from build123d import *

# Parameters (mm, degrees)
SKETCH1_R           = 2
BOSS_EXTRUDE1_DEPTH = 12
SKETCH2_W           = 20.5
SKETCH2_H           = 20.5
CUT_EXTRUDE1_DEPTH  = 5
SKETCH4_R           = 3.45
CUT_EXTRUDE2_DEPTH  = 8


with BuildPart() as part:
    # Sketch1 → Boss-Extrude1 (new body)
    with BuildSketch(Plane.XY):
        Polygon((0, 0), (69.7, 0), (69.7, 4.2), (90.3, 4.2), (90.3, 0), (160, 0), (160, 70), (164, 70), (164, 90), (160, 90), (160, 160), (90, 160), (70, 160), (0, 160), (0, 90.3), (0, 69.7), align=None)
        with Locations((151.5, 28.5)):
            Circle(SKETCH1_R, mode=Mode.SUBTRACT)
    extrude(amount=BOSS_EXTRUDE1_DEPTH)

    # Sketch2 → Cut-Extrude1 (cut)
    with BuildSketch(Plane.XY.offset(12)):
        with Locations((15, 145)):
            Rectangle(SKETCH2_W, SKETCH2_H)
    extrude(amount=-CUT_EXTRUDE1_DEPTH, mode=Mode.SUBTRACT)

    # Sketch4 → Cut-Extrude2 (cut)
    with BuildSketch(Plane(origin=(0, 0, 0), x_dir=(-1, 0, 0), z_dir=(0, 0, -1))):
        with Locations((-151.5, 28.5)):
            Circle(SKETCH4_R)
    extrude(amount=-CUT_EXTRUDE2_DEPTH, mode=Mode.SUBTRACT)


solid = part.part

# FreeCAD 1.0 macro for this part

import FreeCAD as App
import Part
import Sketcher

V = App.Vector


def add_polygon(sketch, points):
    """Adds a closed chain of lines whose ends are joined by coincident constraints."""
    first, n = sketch.GeometryCount, len(points)
    for a, b in zip(points, points[1:] + points[:1]):
        sketch.addGeometry(Part.LineSegment(App.Vector(*a, 0), App.Vector(*b, 0)), False)
    for i in range(n):
        sketch.addConstraint(Sketcher.Constraint("Coincident", first + i, 2, first + (i + 1) % n, 1))

doc = App.newDocument("Part")
params = doc.addObject("Spreadsheet::Sheet", "Params")
for row, (alias, value) in enumerate([
    ("sketch1_diameter", "4 mm"),
    ("sketch1_width", "4 mm"),
    ("sketch1_width2", "160 mm"),
    ("sketch1_height", "70 mm"),
    ("sketch1_width3", "69.7 mm"),
    ("pad1_length", "12 mm"),
    ("sketch2_width", "20.5 mm"),
    ("pocket1_length", "5 mm"),
    ("sketch3_diameter", "6.9 mm"),
    ("pocket2_length", "8 mm"),
], start=1):
    params.set(f"A{row}", alias)
    params.set(f"B{row}", "=" + value)
    params.setAlias(f"B{row}", alias)

body = doc.addObject("PartDesign::Body", "Body")

sketch1 = body.newObject("Sketcher::SketchObject", "Sketch")
sketch1.AttachmentSupport = (doc.getObject("XY_Plane"), [""])
sketch1.MapMode = "FlatFace"
add_polygon(sketch1, [(0, 0), (69.7, 0), (69.7, 4.2), (90.3, 4.2), (90.3, 0), (160, 0), (160, 70), (164, 70), (164, 90), (160, 90), (160, 160), (0, 160)])
sketch1.addGeometry(Part.Circle(V(151.5, 28.5, 0), V(0, 0, 1), 2), False)
sketch1.addConstraint([
    Sketcher.Constraint("Horizontal", 0),
    Sketcher.Constraint("Vertical", 1),
    Sketcher.Constraint("Horizontal", 2),
    Sketcher.Constraint("Vertical", 3),
    Sketcher.Constraint("Horizontal", 4),
    Sketcher.Constraint("Vertical", 5),
    Sketcher.Constraint("Horizontal", 6),
    Sketcher.Constraint("Vertical", 7),
    Sketcher.Constraint("Horizontal", 8),
    Sketcher.Constraint("Vertical", 9),
    Sketcher.Constraint("Horizontal", 10),
    Sketcher.Constraint("Vertical", 11),
    Sketcher.Constraint("Coincident", 11, 2, -1, 1),
    Sketcher.Constraint("PointOnObject", 3, 2, -1),
    Sketcher.Constraint("Vertical", 5, 2, 8, 2),
    Sketcher.Constraint("Equal", 0, 4),
    Sketcher.Constraint("Equal", 5, 9),
    Sketcher.Constraint("Equal", 10, 11),
    Sketcher.Constraint("Diameter", 12, 4.0),
    Sketcher.Constraint("DistanceX", 6, 1, 6, 2, 4.0),
    Sketcher.Constraint("DistanceX", 10, 2, 10, 1, 160.0),
    Sketcher.Constraint("DistanceY", 5, 1, 5, 2, 70.0),
    Sketcher.Constraint("DistanceX", 0, 1, 0, 2, 69.7),
    Sketcher.Constraint("DistanceY", 1, 1, 1, 2, 4.2),
    Sketcher.Constraint("DistanceX", -1, 1, 12, 3, 151.5),
    Sketcher.Constraint("DistanceY", -1, 1, 12, 3, 28.5),
])
sketch1.setExpression("Constraints[30]", "Params.sketch1_diameter")
sketch1.setExpression("Constraints[31]", "Params.sketch1_width")
sketch1.setExpression("Constraints[32]", "Params.sketch1_width2")
sketch1.setExpression("Constraints[33]", "Params.sketch1_height")
sketch1.setExpression("Constraints[34]", "Params.sketch1_width3")
pad1 = body.newObject("PartDesign::Pad", "Pad")
pad1.Profile = sketch1
pad1.setExpression("Length", "Params.pad1_length")

sketch2 = body.newObject("Sketcher::SketchObject", "Sketch001")
sketch2.AttachmentSupport = (doc.getObject("XY_Plane"), [""])
sketch2.MapMode = "FlatFace"
sketch2.AttachmentOffset = App.Placement(V(0, 0, 12), App.Rotation())
add_polygon(sketch2, [(5, 155), (5, 135), (25, 135), (25, 155)])
sketch2.addConstraint([
    Sketcher.Constraint("Vertical", 0),
    Sketcher.Constraint("Horizontal", 1),
    Sketcher.Constraint("Vertical", 2),
    Sketcher.Constraint("Horizontal", 3),
    Sketcher.Constraint("Equal", 3, 0),
    Sketcher.Constraint("DistanceX", 1, 1, 1, 2, 20.5),
    Sketcher.Constraint("DistanceX", -1, 1, 0, 2, 4.75),
    Sketcher.Constraint("DistanceY", -1, 1, 0, 2, 134.75),
])
sketch2.setExpression("Constraints[9]", "Params.sketch2_width")
pocket1 = body.newObject("PartDesign::Pocket", "Pocket")
pocket1.Profile = sketch2
pocket1.setExpression("Length", "Params.pocket1_length")

sketch3 = body.newObject("Sketcher::SketchObject", "Sketch002")
sketch3.AttachmentSupport = (doc.getObject("XY_Plane"), [""])
sketch3.MapMode = "FlatFace"
sketch3.addGeometry(Part.Circle(V(151.5, 28.5, 0), V(0, 0, 1), 3.5), False)
sketch3.addConstraint([
    Sketcher.Constraint("Diameter", 0, 6.9),
    Sketcher.Constraint("DistanceX", -1, 1, 0, 3, 151.5),
    Sketcher.Constraint("DistanceY", -1, 1, 0, 3, 28.5),
])
sketch3.setExpression("Constraints[0]", "Params.sketch3_diameter")
pocket2 = body.newObject("PartDesign::Pocket", "Pocket001")
pocket2.Profile = sketch3
pocket2.setExpression("Length", "Params.pocket2_length")
pocket2.Reversed = True

doc.recompute()
